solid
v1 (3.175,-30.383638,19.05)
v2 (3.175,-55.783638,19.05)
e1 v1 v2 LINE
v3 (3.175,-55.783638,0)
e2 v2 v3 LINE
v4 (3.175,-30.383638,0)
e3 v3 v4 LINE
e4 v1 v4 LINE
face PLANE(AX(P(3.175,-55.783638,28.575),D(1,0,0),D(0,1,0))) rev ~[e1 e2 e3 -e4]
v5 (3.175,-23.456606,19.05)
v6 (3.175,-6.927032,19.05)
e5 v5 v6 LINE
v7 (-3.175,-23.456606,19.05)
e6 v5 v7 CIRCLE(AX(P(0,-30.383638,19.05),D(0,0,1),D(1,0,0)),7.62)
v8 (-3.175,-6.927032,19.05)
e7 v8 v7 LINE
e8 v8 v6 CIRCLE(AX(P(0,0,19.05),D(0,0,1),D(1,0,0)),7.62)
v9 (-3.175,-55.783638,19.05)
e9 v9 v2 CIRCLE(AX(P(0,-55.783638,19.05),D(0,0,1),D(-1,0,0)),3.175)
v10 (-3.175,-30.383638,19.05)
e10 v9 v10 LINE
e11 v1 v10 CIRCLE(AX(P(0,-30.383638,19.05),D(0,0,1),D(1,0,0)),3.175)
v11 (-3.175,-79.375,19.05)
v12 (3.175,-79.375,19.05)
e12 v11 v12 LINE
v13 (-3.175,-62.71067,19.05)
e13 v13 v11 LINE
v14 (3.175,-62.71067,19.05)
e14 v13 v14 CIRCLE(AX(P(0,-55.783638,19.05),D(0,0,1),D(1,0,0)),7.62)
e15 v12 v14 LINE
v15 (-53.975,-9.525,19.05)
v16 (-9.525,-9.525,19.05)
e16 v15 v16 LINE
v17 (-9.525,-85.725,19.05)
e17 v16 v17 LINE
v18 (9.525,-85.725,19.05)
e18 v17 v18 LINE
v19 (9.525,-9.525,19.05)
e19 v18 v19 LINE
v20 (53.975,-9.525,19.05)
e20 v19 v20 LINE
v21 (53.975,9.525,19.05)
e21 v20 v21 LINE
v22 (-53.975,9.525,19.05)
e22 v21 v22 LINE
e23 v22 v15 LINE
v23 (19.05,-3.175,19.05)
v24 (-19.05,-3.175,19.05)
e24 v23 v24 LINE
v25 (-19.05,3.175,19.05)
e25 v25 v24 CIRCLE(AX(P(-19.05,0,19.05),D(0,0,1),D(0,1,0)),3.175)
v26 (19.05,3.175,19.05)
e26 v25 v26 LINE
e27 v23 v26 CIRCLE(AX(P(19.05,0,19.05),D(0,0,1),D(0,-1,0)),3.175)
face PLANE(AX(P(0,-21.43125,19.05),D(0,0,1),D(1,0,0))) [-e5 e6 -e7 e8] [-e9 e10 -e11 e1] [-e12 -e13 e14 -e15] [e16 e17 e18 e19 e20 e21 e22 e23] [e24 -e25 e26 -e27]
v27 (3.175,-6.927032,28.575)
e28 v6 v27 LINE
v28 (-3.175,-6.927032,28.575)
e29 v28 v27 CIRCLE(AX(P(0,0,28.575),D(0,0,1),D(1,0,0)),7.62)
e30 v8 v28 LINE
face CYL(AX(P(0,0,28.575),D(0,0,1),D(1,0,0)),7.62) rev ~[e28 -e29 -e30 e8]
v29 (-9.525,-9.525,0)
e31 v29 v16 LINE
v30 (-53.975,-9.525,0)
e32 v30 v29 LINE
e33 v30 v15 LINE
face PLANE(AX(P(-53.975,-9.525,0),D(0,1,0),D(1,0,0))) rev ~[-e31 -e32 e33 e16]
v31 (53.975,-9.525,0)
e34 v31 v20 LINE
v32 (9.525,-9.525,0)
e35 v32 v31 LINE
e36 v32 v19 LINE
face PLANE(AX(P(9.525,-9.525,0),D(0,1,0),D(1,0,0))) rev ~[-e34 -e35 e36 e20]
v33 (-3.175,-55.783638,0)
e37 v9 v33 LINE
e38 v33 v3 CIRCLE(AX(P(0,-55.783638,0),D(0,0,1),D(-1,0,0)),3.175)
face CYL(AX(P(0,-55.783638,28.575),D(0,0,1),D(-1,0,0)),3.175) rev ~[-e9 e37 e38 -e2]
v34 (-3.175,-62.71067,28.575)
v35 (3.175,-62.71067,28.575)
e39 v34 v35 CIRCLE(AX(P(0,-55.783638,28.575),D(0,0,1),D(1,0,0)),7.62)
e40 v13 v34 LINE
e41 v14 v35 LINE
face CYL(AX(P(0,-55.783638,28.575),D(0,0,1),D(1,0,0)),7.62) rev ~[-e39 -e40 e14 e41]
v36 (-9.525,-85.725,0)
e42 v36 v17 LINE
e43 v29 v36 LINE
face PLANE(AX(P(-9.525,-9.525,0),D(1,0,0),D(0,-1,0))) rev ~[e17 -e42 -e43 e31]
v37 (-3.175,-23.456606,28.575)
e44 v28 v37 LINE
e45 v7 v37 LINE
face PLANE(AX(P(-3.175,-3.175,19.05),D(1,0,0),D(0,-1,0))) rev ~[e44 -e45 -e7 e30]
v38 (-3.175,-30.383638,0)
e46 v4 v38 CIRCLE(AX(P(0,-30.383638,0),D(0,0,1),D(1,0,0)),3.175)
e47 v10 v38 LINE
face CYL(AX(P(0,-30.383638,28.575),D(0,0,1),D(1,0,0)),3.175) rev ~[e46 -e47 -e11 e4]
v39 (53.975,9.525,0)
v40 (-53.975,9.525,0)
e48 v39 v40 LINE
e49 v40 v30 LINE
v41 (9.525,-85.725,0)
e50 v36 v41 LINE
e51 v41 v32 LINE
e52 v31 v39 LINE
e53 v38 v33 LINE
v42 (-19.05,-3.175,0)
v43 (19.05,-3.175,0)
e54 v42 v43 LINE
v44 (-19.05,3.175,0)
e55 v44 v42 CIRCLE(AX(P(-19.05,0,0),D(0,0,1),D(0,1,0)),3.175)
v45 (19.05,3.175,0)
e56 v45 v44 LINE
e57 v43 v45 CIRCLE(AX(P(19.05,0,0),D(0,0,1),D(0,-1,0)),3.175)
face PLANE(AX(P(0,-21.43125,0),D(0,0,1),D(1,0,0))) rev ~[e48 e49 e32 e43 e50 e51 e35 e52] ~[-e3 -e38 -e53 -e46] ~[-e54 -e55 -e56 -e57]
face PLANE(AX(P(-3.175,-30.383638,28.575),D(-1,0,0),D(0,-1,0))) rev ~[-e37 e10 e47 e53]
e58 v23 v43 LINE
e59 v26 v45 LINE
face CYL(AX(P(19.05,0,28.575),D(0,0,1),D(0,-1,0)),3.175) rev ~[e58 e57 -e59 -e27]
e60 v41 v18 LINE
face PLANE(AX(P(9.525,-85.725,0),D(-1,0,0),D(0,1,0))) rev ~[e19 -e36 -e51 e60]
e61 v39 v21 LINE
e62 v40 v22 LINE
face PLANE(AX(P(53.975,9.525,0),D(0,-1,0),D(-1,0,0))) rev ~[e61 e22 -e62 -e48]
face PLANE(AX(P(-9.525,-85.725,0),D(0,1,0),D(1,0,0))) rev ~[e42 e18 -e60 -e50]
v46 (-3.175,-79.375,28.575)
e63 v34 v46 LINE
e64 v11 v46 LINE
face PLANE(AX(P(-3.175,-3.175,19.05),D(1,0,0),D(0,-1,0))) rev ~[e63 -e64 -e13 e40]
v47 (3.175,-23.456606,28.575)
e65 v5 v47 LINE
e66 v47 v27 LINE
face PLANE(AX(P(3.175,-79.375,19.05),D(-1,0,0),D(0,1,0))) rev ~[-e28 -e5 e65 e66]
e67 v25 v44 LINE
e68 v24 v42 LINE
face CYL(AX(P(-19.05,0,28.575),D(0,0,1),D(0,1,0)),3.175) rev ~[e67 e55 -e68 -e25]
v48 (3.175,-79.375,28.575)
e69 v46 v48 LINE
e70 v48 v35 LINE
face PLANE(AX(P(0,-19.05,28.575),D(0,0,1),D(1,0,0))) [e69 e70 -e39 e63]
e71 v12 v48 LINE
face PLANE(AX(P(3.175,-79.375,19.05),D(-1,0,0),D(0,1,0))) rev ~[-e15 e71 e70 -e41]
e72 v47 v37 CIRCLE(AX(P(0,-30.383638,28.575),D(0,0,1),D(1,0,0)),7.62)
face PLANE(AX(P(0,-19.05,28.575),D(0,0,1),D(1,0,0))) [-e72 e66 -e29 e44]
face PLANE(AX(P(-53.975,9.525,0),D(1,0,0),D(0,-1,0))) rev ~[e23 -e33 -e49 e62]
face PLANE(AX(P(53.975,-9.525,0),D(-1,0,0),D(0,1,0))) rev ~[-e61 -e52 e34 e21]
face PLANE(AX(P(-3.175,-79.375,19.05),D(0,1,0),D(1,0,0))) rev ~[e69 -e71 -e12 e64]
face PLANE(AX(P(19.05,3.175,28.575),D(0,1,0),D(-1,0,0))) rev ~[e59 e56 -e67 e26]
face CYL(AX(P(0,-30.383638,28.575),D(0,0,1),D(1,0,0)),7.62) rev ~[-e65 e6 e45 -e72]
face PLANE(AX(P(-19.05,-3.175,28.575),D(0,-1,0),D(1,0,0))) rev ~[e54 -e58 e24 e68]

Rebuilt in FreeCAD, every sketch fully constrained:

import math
import FreeCAD as App
import Part
import Sketcher
Q = App.Units.Quantity


def add_polygon(sketch, points):
    """Adds a closed chain of lines whose ends are joined by coincident constraints."""
    first, n = sketch.GeometryCount, len(points)
    for a, b in zip(points, points[1:] + points[:1]):
        sketch.addGeometry(Part.LineSegment(App.Vector(*a, 0), App.Vector(*b, 0)), False)
    for i in range(n):
        sketch.addConstraint(Sketcher.Constraint("Coincident", first + i, 2, first + (i + 1) % n, 1))

doc = App.newDocument("Part")
params = doc.addObject("Spreadsheet::Sheet", "Params")
for row, (alias, value) in enumerate([
    ("sketch1_height", "3 in"),
    ("sketch1_width", "4.25 in"),
    ("sketch1_width2", "1.75 in"),
    ("pad1_length", "0.75 in"),
    ("sketch2_height", "3 in"),
    ("sketch2_width", "3.75 in"),
    ("pad2_length", "0.375 in"),
    ("sketch3_height", "1 in"),
    ("sketch3_width", "1.5 in"),
    ("sketch3_radius", "0.125 in"),
    ("sketch4_diameter", "0.6 in"),
    ("pocket2_length", "0.375 in"),
    ("sketch5_radius", "0.3 in"),
    ("sketch5_height", "0.25 in"),
    ("pocket3_length", "0.375 in"),
], start=1):
    params.set(f"A{row}", alias)
    params.set(f"B{row}", "=" + value)
    params.setAlias(f"B{row}", alias)

body = doc.addObject("PartDesign::Body", "Body")

sketch1 = body.newObject("Sketcher::SketchObject", "Sketch")
sketch1.AttachmentSupport = (doc.getObject("XY_Plane"), [""])
sketch1.MapMode = "FlatFace"
add_polygon(sketch1, [(54, 10), (-54, 10), (-54, -10), (-10, -10), (-10, -86), (10, -86), (10, -10), (54, -10)])
sketch1.addConstraint([
    Sketcher.Constraint("Horizontal", 0),
    Sketcher.Constraint("Vertical", 1),
    Sketcher.Constraint("Horizontal", 2),
    Sketcher.Constraint("Vertical", 3),
    Sketcher.Constraint("Horizontal", 4),
    Sketcher.Constraint("Vertical", 5),
    Sketcher.Constraint("Horizontal", 6),
    Sketcher.Constraint("Vertical", 7),
    Sketcher.Constraint("Symmetric", 0, 2, 6, 2, -1, 1),
    Sketcher.Constraint("Symmetric", 2, 2, 5, 2, -2),
    Sketcher.Constraint("Equal", 4, 1),
    Sketcher.Constraint("DistanceY", 3, 2, 3, 1, Q("3 in")),
    Sketcher.Constraint("DistanceX", 0, 2, 0, 1, Q("4.25 in")),
    Sketcher.Constraint("DistanceX", 2, 1, 2, 2, Q("1.75 in")),
])
sketch1.setExpression("Constraints[19]", "Params.sketch1_height")
sketch1.setExpression("Constraints[20]", "Params.sketch1_width")
sketch1.setExpression("Constraints[21]", "Params.sketch1_width2")
pad1 = body.newObject("PartDesign::Pad", "Pad")
pad1.Profile = sketch1
pad1.setExpression("Length", "Params.pad1_length")

sketch2 = body.newObject("Sketcher::SketchObject", "Sketch001")
sketch2.AttachmentSupport = (doc.getObject("XY_Plane"), [""])
sketch2.MapMode = "FlatFace"
sketch2.AttachmentOffset = App.Placement(App.Vector(0, 0, 0.75 * 25.4), App.Rotation())
add_polygon(sketch2, [(48, 3), (-48, 3), (-48, -3), (-3, -3), (-3, -79), (3, -79), (3, -3), (48, -3)])
sketch2.addConstraint([
    Sketcher.Constraint("Horizontal", 0),
    Sketcher.Constraint("Vertical", 1),
    Sketcher.Constraint("Horizontal", 2),
    Sketcher.Constraint("Vertical", 3),
    Sketcher.Constraint("Horizontal", 4),
    Sketcher.Constraint("Vertical", 5),
    Sketcher.Constraint("Horizontal", 6),
    Sketcher.Constraint("Vertical", 7),
    Sketcher.Constraint("Symmetric", 0, 2, 6, 2, -1, 1),
    Sketcher.Constraint("Symmetric", 2, 2, 5, 2, -2),
    Sketcher.Constraint("Equal", 4, 1),
    Sketcher.Constraint("DistanceY", 3, 2, 3, 1, Q("3 in")),
    Sketcher.Constraint("DistanceX", 1, 2, 4, 2, Q("2 in")),
    Sketcher.Constraint("DistanceX", 0, 2, 0, 1, Q("3.75 in")),
])
sketch2.setExpression("Constraints[19]", "Params.sketch2_height")
sketch2.setExpression("Constraints[21]", "Params.sketch2_width")
pad2 = body.newObject("PartDesign::Pad", "Pad001")
pad2.Profile = sketch2
pad2.setExpression("Length", "Params.pad2_length")

sketch3 = body.newObject("Sketcher::SketchObject", "Sketch002")
sketch3.AttachmentSupport = (doc.getObject("XY_Plane"), [""])
sketch3.MapMode = "FlatFace"
sketch3.AttachmentOffset = App.Placement(App.Vector(0, 0, 1.125 * 25.4), App.Rotation())
sketch3.addGeometry([
    Part.ArcOfCircle(Part.Circle(App.Vector(0, -55.8, 0), App.Vector(0, 0, 1), 3.2), math.radians(180), math.radians(360)),
    Part.LineSegment(App.Vector(3.2, -55.8, 0), App.Vector(3.2, -30.4, 0)),
    Part.ArcOfCircle(Part.Circle(App.Vector(0, -30.4, 0), App.Vector(0, 0, 1), 3.2), math.radians(0), math.radians(180)),
    Part.LineSegment(App.Vector(-3.2, -30.4, 0), App.Vector(-3.2, -55.8, 0)),
    Part.ArcOfCircle(Part.Circle(App.Vector(-19.1, 0, 0), App.Vector(0, 0, 1), 3.2), math.radians(90), math.radians(270)),
    Part.LineSegment(App.Vector(-19.1, -3.2, 0), App.Vector(19.1, -3.2, 0)),
    Part.ArcOfCircle(Part.Circle(App.Vector(19.1, 0, 0), App.Vector(0, 0, 1), 3.2), math.radians(-90), math.radians(90)),
    Part.LineSegment(App.Vector(19.1, 3.2, 0), App.Vector(-19.1, 3.2, 0)),
], False)
sketch3.addConstraint([
    Sketcher.Constraint("Tangent", 0, 2, 1, 1),
    Sketcher.Constraint("Tangent", 1, 2, 2, 1),
    Sketcher.Constraint("Tangent", 2, 2, 3, 1),
    Sketcher.Constraint("Tangent", 3, 2, 0, 1),
    Sketcher.Constraint("Tangent", 4, 2, 5, 1),
    Sketcher.Constraint("Tangent", 5, 2, 6, 1),
    Sketcher.Constraint("Tangent", 6, 2, 7, 1),
    Sketcher.Constraint("Tangent", 7, 2, 4, 1),
    Sketcher.Constraint("Vertical", 1),
    Sketcher.Constraint("Vertical", 3),
    Sketcher.Constraint("Horizontal", 5),
    Sketcher.Constraint("Horizontal", 7),
    Sketcher.Constraint("Equal", 2, 4),
    Sketcher.Constraint("Symmetric", 4, 3, 6, 3, -1, 1),
    Sketcher.Constraint("PointOnObject", 0, 3, -2),
    Sketcher.Constraint("DistanceY", 1, 1, 1, 2, Q("1 in")),
    Sketcher.Constraint("DistanceX", 5, 1, 5, 2, Q("1.5 in")),
    Sketcher.Constraint("Radius", 0, Q("0.125 in")),
    Sketcher.Constraint("DistanceY", 0, 3, -1, 1, 55.783638),
])
sketch3.setExpression("Constraints[15]", "Params.sketch3_height")
sketch3.setExpression("Constraints[16]", "Params.sketch3_width")
sketch3.setExpression("Constraints[17]", "Params.sketch3_radius")
pocket1 = body.newObject("PartDesign::Pocket", "Pocket")
pocket1.Profile = sketch3
pocket1.Type = "ThroughAll"

sketch4 = body.newObject("Sketcher::SketchObject", "Sketch003")
sketch4.AttachmentSupport = (doc.getObject("XY_Plane"), [""])
sketch4.MapMode = "FlatFace"
sketch4.AttachmentOffset = App.Placement(App.Vector(0, 0, 1.125 * 25.4), App.Rotation())
sketch4.addGeometry([
    Part.ArcOfCircle(Part.Circle(App.Vector(-19, 0, 0), App.Vector(0, 0, 1), 8), math.radians(-155), math.radians(0)),
    Part.ArcOfCircle(Part.Circle(App.Vector(-19, 0, 0), App.Vector(0, 0, 1), 8), math.radians(0), math.radians(155)),
    Part.ArcOfCircle(Part.Circle(App.Vector(-19, 0, 0), App.Vector(0, 0, 1), 8), math.radians(155), math.radians(205)),
    Part.Circle(App.Vector(19, 0, 0), App.Vector(0, 0, 1), 8),
    Part.Circle(App.Vector(0, -30, 0), App.Vector(0, 0, 1), 8),
    Part.Circle(App.Vector(0, -56, 0), App.Vector(0, 0, 1), 8),
    Part.Circle(App.Vector(0, 0, 0), App.Vector(0, 0, 1), 8),
], False)
sketch4.addConstraint([
    Sketcher.Constraint("Tangent", 0, 2, 1, 1),
    Sketcher.Constraint("Tangent", 1, 2, 2, 1),
    Sketcher.Constraint("Tangent", 2, 2, 0, 1),
    Sketcher.Constraint("Coincident", 6, 3, -1, 1),
    Sketcher.Constraint("Equal", 2, 3),
    Sketcher.Constraint("Equal", 3, 4),
    Sketcher.Constraint("Equal", 4, 5),
    Sketcher.Constraint("Equal", 5, 6),
    Sketcher.Constraint("Symmetric", 0, 3, 3, 3, -1, 1),
    Sketcher.Constraint("Symmetric", 1, 2, 2, 2, -1),
    Sketcher.Constraint("PointOnObject", 4, 3, -2),
    Sketcher.Constraint("PointOnObject", 5, 3, -2),
    Sketcher.Constraint("PointOnObject", 0, 2, -1),
    Sketcher.Constraint("Diameter", 3, Q("0.6 in")),
    Sketcher.Constraint("DistanceY", 5, 3, 4, 3, Q("1 in")),
    Sketcher.Constraint("DistanceX", 0, 3, 3, 3, Q("1.5 in")),
    Sketcher.Constraint("DistanceY", 2, 2, 1, 2, Q("0.25 in")),
    Sketcher.Constraint("DistanceY", 4, 3, -1, 1, 30.383638),
])
sketch4.setExpression("Constraints[13]", "Params.sketch4_diameter")
pocket2 = body.newObject("PartDesign::Pocket", "Pocket001")
pocket2.Profile = sketch4
pocket2.setExpression("Length", "Params.pocket2_length")

sketch5 = body.newObject("Sketcher::SketchObject", "Sketch004")
sketch5.AttachmentSupport = (doc.getObject("XY_Plane"), [""])
sketch5.MapMode = "FlatFace"
sketch5.AttachmentOffset = App.Placement(App.Vector(0, 0, 1.125 * 25.4), App.Rotation())
sketch5.addGeometry([
    Part.LineSegment(App.Vector(-26, 3, 0), App.Vector(-48, 3, 0)),
    Part.LineSegment(App.Vector(-48, 3, 0), App.Vector(-48, -3, 0)),
    Part.LineSegment(App.Vector(-48, -3, 0), App.Vector(-26, -3, 0)),
    Part.ArcOfCircle(Part.Circle(App.Vector(-19, 0, 0), App.Vector(0, 0, 1), 8), math.radians(155), math.radians(205)),
    Part.LineSegment(App.Vector(48, 3, 0), App.Vector(26, 3, 0)),
    Part.ArcOfCircle(Part.Circle(App.Vector(19, 0, 0), App.Vector(0, 0, 1), 8), math.radians(-25), math.radians(25)),
    Part.LineSegment(App.Vector(26, -3, 0), App.Vector(48, -3, 0)),
    Part.LineSegment(App.Vector(48, -3, 0), App.Vector(48, 3, 0)),
], False)
sketch5.addConstraint([
    Sketcher.Constraint("Coincident", 0, 2, 1, 1),
    Sketcher.Constraint("Coincident", 1, 2, 2, 1),
    Sketcher.Constraint("Coincident", 2, 2, 3, 2),
    Sketcher.Constraint("Coincident", 3, 1, 0, 1),
    Sketcher.Constraint("Coincident", 4, 2, 5, 2),
    Sketcher.Constraint("Coincident", 5, 1, 6, 1),
    Sketcher.Constraint("Coincident", 6, 2, 7, 1),
    Sketcher.Constraint("Coincident", 7, 2, 4, 1),
    Sketcher.Constraint("Horizontal", 0),
    Sketcher.Constraint("Vertical", 1),
    Sketcher.Constraint("Horizontal", 2),
    Sketcher.Constraint("Horizontal", 4),
    Sketcher.Constraint("Horizontal", 6),
    Sketcher.Constraint("Vertical", 7),
    Sketcher.Constraint("Equal", 3, 5),
    Sketcher.Constraint("Symmetric", 3, 3, 5, 3, -1, 1),
    Sketcher.Constraint("Symmetric", 0, 2, 6, 2, -1, 1),
    Sketcher.Constraint("Symmetric", 3, 1, 4, 2, -2),
    Sketcher.Constraint("Horizontal", 2, 2, 5, 1),
    Sketcher.Constraint("Radius", 3, Q("0.3 in")),
    Sketcher.Constraint("DistanceY", 1, 2, 1, 1, Q("0.25 in")),
    Sketcher.Constraint("DistanceX", 3, 3, 5, 3, Q("1.5 in")),
    Sketcher.Constraint("DistanceX", 0, 2, -1, 1, Q("1.875 in")),
])
sketch5.setExpression("Constraints[19]", "Params.sketch5_radius")
sketch5.setExpression("Constraints[20]", "Params.sketch5_height")
pocket3 = body.newObject("PartDesign::Pocket", "Pocket002")
pocket3.Profile = sketch5
pocket3.setExpression("Length", "Params.pocket3_length")

doc.recompute()
